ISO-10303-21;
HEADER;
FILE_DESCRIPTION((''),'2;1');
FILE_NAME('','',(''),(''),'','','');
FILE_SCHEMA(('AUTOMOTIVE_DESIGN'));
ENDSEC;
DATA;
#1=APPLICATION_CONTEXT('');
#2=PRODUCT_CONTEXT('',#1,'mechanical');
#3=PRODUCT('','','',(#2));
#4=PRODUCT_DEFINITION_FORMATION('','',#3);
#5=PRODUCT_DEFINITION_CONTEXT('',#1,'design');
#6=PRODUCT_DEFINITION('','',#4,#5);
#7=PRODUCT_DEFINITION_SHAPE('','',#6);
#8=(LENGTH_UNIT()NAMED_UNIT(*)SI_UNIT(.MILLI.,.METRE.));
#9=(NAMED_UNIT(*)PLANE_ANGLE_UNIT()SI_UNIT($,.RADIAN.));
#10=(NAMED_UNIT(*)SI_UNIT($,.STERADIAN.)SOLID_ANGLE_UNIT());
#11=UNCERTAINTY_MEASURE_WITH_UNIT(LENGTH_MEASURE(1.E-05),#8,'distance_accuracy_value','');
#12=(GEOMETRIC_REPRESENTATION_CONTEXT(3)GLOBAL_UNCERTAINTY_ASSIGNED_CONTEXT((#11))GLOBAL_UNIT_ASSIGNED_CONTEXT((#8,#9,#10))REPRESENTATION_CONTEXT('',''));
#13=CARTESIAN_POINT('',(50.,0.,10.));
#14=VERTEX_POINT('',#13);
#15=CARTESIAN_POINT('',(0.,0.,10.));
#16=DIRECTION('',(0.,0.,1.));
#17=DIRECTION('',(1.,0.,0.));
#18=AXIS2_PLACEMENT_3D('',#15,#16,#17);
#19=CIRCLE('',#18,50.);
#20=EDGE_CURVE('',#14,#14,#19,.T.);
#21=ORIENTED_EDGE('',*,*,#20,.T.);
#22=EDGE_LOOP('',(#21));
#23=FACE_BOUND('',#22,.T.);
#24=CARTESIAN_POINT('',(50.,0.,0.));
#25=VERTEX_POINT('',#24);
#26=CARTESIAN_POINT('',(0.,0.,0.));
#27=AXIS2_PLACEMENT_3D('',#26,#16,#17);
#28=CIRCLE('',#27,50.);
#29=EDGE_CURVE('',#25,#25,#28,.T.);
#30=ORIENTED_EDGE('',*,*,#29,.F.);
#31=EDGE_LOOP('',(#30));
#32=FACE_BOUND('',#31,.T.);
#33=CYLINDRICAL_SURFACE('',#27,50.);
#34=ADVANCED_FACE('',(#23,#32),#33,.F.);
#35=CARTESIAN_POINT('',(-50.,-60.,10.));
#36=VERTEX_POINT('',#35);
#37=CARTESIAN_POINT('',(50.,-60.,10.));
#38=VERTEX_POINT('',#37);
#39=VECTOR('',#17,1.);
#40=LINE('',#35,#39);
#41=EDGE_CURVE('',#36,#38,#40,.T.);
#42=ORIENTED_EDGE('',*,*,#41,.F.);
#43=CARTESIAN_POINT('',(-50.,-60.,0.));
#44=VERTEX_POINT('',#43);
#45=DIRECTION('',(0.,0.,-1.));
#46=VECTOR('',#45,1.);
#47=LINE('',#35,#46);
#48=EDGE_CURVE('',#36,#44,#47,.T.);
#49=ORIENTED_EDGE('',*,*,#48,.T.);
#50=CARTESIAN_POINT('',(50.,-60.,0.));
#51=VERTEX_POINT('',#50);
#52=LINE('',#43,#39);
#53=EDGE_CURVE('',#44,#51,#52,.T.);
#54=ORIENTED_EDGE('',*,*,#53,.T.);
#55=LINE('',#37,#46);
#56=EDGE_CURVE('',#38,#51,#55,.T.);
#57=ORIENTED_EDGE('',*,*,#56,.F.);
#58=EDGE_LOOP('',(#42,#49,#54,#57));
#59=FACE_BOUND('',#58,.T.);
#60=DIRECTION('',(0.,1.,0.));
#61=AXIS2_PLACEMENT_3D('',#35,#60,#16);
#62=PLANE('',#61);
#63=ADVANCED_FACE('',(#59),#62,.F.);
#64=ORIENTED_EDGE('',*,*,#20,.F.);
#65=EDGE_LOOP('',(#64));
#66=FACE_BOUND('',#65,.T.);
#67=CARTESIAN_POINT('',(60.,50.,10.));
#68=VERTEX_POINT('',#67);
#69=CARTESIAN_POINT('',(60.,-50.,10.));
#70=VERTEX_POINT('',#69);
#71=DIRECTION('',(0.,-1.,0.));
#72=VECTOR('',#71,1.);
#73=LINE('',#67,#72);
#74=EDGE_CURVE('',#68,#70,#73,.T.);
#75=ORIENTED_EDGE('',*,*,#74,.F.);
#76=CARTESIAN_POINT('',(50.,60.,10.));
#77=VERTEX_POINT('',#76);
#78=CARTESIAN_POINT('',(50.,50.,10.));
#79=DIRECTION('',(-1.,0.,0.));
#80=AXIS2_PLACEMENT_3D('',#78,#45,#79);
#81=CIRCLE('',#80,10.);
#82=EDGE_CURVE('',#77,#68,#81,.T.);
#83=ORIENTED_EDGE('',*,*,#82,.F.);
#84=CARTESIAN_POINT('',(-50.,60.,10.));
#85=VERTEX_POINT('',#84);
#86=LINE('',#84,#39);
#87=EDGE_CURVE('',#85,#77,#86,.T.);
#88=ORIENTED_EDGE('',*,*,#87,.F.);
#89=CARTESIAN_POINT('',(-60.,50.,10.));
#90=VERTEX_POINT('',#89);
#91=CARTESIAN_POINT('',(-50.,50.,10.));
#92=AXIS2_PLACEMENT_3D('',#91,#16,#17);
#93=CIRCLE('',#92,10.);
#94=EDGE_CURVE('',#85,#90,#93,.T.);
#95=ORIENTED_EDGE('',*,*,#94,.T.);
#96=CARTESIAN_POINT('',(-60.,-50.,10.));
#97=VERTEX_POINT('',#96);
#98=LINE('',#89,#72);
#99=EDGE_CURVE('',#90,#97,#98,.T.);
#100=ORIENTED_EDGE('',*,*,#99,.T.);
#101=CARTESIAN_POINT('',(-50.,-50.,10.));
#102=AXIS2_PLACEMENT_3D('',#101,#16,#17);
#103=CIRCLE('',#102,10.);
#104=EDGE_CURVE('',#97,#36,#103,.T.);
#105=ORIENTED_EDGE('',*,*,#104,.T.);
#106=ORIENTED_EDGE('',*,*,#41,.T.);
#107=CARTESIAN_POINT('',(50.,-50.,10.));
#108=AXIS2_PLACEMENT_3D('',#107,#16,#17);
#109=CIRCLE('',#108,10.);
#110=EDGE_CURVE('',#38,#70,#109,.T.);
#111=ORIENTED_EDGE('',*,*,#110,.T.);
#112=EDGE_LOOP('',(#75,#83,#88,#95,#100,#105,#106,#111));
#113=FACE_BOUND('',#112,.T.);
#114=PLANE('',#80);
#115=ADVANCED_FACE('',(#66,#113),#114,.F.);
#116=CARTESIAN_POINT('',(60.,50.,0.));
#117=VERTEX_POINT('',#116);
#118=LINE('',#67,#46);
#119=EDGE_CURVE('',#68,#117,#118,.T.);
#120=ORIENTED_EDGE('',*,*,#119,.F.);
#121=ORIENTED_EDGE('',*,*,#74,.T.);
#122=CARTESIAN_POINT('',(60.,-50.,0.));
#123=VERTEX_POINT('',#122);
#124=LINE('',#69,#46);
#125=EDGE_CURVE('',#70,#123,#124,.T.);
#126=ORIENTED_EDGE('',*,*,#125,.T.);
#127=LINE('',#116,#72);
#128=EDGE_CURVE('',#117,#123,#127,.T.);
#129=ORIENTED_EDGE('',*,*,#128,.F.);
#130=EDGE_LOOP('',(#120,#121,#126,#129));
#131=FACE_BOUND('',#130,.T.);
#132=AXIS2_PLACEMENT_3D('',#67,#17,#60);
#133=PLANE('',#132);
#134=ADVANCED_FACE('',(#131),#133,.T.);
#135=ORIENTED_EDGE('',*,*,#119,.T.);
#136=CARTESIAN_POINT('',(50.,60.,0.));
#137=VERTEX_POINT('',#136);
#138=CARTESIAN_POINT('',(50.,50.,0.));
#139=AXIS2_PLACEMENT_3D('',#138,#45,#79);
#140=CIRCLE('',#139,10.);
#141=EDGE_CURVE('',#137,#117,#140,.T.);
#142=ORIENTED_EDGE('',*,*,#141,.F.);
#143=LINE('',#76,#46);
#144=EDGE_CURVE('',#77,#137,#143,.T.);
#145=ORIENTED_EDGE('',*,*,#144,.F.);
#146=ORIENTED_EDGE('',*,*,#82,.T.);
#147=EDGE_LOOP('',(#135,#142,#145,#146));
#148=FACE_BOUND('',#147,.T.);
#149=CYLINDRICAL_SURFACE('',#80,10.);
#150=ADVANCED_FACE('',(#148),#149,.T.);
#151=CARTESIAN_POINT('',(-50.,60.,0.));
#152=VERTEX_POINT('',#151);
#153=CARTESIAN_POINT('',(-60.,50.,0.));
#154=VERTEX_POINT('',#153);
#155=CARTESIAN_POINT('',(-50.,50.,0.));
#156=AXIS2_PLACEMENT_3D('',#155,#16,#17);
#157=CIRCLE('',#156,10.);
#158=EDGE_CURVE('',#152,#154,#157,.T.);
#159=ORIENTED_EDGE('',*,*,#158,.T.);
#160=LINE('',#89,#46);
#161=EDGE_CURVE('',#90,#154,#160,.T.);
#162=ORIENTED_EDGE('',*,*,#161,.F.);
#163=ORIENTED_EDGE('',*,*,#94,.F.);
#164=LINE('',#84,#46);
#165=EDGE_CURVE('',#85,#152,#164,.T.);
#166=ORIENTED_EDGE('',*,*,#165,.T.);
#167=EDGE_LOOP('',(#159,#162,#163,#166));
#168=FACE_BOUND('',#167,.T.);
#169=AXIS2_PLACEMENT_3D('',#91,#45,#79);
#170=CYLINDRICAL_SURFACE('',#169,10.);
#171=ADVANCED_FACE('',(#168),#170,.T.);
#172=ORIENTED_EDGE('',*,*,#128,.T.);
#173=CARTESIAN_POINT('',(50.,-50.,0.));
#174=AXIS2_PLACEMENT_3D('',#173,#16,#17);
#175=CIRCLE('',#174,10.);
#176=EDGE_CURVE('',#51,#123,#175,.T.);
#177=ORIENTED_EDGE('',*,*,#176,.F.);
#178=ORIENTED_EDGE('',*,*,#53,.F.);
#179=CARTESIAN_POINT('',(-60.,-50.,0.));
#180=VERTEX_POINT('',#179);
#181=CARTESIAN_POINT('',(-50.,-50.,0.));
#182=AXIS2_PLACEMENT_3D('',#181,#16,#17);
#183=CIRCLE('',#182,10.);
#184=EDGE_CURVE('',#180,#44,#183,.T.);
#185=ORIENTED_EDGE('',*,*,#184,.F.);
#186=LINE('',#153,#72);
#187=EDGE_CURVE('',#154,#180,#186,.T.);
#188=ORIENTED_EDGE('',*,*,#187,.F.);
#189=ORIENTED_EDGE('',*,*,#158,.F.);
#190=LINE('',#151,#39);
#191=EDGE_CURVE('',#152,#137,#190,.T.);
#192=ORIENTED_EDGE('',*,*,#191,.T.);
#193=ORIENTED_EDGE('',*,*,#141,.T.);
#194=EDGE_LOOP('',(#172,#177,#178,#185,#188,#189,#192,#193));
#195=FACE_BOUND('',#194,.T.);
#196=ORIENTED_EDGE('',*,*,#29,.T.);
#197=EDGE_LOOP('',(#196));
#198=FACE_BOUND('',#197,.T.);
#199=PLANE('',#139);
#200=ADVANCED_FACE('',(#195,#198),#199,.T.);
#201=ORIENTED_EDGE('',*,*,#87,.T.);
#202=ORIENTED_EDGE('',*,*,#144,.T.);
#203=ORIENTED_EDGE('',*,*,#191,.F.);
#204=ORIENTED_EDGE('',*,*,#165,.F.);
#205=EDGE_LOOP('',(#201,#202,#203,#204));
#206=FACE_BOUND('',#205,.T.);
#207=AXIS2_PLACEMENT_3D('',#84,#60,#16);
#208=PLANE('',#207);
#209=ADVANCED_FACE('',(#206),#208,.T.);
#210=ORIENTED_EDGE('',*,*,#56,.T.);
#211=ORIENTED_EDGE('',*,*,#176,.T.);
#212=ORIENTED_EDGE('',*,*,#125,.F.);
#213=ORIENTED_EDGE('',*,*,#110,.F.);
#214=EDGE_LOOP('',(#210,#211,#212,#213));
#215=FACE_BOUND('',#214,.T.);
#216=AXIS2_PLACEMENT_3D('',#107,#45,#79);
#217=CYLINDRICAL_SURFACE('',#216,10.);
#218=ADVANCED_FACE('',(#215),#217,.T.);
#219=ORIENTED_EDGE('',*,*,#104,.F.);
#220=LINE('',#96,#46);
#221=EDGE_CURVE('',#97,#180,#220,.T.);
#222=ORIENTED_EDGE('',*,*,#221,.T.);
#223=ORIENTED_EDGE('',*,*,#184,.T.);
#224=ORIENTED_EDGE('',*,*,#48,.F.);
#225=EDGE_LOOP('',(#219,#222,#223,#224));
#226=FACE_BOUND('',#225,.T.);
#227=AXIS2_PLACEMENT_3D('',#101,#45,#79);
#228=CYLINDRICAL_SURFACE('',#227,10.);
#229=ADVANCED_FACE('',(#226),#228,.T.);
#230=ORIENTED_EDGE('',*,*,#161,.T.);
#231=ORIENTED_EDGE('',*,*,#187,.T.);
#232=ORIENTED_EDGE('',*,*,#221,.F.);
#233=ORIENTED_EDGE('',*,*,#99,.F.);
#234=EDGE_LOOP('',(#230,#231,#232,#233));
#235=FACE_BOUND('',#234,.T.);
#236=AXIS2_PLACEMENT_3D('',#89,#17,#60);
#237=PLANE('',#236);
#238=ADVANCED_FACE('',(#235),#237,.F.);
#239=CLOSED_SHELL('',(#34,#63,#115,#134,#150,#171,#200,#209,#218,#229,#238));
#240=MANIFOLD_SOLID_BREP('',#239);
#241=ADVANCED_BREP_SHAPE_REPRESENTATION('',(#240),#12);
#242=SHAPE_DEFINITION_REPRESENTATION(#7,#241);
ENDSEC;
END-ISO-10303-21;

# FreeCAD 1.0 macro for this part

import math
import FreeCAD as App
import Part
import Sketcher

doc = App.newDocument("Part")
body = doc.addObject("PartDesign::Body", "Body")

# Sketch on XY plane
sketch1 = doc.addObject("Sketcher::SketchObject", "Sketch")
body.addObject(sketch1)
sketch1.AttachmentSupport = (doc.XY_Plane, [""])
sketch1.MapMode = "FlatFace"
sketch1.addGeometry([
    Part.LineSegment(App.Vector(50, 60, 0), App.Vector(-50, 60, 0)),  # 0
    Part.ArcOfCircle(Part.Circle(App.Vector(-50, 50, 0), App.Vector(0, 0, 1), 10), math.radians(90), math.radians(180)),  # 1
    Part.LineSegment(App.Vector(-60, 50, 0), App.Vector(-60, -50, 0)),  # 2
    Part.ArcOfCircle(Part.Circle(App.Vector(-50, -50, 0), App.Vector(0, 0, 1), 10), math.radians(180), math.radians(270)),  # 3
    Part.LineSegment(App.Vector(-50, -60, 0), App.Vector(50, -60, 0)),  # 4
    Part.ArcOfCircle(Part.Circle(App.Vector(50, -50, 0), App.Vector(0, 0, 1), 10), math.radians(-90), math.radians(0)),  # 5
    Part.LineSegment(App.Vector(60, -50, 0), App.Vector(60, 50, 0)),  # 6
    Part.ArcOfCircle(Part.Circle(App.Vector(50, 50, 0), App.Vector(0, 0, 1), 10), math.radians(0), math.radians(90)),  # 7
], False)
sketch1.addConstraint([
    Sketcher.Constraint("Tangent", 0, 2, 1, 1),
    Sketcher.Constraint("Tangent", 1, 2, 2, 1),
    Sketcher.Constraint("Tangent", 2, 2, 3, 1),
    Sketcher.Constraint("Tangent", 3, 2, 4, 1),
    Sketcher.Constraint("Tangent", 4, 2, 5, 1),
    Sketcher.Constraint("Tangent", 5, 2, 6, 1),
    Sketcher.Constraint("Tangent", 6, 2, 7, 1),
    Sketcher.Constraint("Tangent", 7, 2, 0, 1),
    Sketcher.Constraint("Horizontal", 0),
    Sketcher.Constraint("Vertical", 2),
    Sketcher.Constraint("Horizontal", 4),
    Sketcher.Constraint("Vertical", 6),
    Sketcher.Constraint("Equal", 1, 3),
    Sketcher.Constraint("Equal", 3, 5),
    Sketcher.Constraint("Equal", 5, 7),
    Sketcher.Constraint("Symmetric", 1, 3, 5, 3, -1, 1),
    Sketcher.Constraint("Equal", 4, 2),
    Sketcher.Constraint("Radius", 1, 10.0),
    Sketcher.Constraint("DistanceX", 0, 2, 0, 1, 100.0),
])
pad1 = doc.addObject("PartDesign::Pad", "Pad")
body.addObject(pad1)
pad1.Profile = sketch1
pad1.Length = 10

# Sketch on XY plane
sketch2 = doc.addObject("Sketcher::SketchObject", "Sketch001")
body.addObject(sketch2)
sketch2.AttachmentSupport = (doc.XY_Plane, [""])
sketch2.MapMode = "FlatFace"
sketch2.AttachmentOffset = App.Placement(App.Vector(0, 0, 10), App.Rotation())
sketch2.addGeometry(Part.Circle(App.Vector(0, 0, 0), App.Vector(0, 0, 1), 50), False)
sketch2.addConstraint([
    Sketcher.Constraint("Coincident", 0, 3, -1, 1),
    Sketcher.Constraint("Diameter", 0, 100.0),
])
pocket1 = doc.addObject("PartDesign::Pocket", "Pocket")
body.addObject(pocket1)
pocket1.Profile = sketch2
pocket1.Length = 10

doc.recompute()
